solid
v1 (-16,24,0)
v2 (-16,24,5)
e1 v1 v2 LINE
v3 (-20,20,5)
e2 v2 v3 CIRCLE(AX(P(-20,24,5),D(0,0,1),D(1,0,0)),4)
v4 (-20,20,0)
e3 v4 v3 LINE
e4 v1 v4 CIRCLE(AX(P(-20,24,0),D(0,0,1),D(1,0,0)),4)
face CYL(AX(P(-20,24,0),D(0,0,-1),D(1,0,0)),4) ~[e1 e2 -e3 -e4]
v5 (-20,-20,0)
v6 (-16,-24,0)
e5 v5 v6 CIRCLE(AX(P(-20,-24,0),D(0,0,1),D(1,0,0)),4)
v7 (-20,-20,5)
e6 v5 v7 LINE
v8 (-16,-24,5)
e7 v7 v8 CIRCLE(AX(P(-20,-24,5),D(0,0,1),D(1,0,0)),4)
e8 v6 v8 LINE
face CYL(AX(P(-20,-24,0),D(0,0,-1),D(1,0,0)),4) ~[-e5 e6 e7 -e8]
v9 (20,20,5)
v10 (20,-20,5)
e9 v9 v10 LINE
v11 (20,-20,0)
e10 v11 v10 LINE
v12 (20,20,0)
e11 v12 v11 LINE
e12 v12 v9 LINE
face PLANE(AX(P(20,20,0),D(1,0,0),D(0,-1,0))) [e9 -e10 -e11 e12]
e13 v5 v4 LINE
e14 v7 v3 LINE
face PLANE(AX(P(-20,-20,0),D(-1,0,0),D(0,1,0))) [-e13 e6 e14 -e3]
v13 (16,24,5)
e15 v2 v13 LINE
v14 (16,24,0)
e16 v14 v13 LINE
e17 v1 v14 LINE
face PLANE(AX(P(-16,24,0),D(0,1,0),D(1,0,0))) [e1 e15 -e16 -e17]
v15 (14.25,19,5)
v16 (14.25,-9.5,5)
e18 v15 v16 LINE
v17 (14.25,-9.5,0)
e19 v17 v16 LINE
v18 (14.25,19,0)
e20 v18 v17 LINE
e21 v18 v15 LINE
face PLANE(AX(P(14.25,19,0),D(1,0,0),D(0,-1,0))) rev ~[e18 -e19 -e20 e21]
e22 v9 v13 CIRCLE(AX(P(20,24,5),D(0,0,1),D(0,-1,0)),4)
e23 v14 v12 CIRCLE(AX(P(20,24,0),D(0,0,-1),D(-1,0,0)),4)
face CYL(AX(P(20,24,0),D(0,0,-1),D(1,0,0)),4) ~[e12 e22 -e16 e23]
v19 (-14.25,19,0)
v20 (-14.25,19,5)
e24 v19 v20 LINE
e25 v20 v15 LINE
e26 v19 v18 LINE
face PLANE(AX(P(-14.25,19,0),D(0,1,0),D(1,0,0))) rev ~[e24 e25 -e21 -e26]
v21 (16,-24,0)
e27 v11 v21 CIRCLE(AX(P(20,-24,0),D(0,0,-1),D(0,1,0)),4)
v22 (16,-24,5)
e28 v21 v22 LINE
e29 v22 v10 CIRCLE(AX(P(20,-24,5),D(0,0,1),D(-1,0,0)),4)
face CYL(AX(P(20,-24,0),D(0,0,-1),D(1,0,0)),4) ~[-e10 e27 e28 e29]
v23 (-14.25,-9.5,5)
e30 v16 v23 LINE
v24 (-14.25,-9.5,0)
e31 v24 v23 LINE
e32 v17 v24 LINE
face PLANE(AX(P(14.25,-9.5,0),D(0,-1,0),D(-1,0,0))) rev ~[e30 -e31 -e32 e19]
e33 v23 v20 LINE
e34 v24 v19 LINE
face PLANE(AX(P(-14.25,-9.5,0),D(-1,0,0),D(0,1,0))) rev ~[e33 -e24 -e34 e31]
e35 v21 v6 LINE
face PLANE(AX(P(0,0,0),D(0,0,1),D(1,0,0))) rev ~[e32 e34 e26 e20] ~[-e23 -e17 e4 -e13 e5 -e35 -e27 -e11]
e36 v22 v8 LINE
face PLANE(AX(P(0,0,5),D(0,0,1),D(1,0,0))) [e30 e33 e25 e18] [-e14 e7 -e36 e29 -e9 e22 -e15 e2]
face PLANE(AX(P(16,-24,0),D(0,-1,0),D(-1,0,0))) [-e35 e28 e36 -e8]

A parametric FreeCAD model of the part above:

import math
import FreeCAD as App
import Part
import Sketcher
from FreeCAD import Vector

doc = App.newDocument("Part")
params = doc.addObject("Spreadsheet::Sheet", "Params")
for row, (alias, value) in enumerate([
    ("sketch1_radius", "4 mm"),
    ("sketch1_height", "40 mm"),
    ("sketch1_width", "28.5 mm"),
    ("pad1_length", "5 mm"),
], start=1):
    params.set(f"A{row}", alias)
    params.set(f"B{row}", "=" + value)
    params.setAlias(f"B{row}", alias)

body = doc.addObject("PartDesign::Body", "Body")

sketch1 = body.newObject("Sketcher::SketchObject", "Sketch")
sketch1.AttachmentSupport = (doc.getObject("XY_Plane"), [""])
sketch1.MapMode = "FlatFace"
sketch1.addGeometry([
    Part.ArcOfCircle(Part.Circle(Vector(-20, 24, 0), Vector(0, 0, 1), 4), math.radians(0), math.radians(270)),
    Part.LineSegment(Vector(-20, 20, 0), Vector(-20, -20, 0)),
    Part.ArcOfCircle(Part.Circle(Vector(-20, -24, 0), Vector(0, 0, 1), 4), math.radians(90), math.radians(360)),
    Part.LineSegment(Vector(-16, -24, 0), Vector(16, -24, 0)),
    Part.ArcOfCircle(Part.Circle(Vector(20, -24, 0), Vector(0, 0, 1), 4), math.radians(180), math.radians(450)),
    Part.LineSegment(Vector(20, -20, 0), Vector(20, 20, 0)),
    Part.ArcOfCircle(Part.Circle(Vector(20, 24, 0), Vector(0, 0, 1), 4), math.radians(-90), math.radians(180)),
    Part.LineSegment(Vector(16, 24, 0), Vector(-16, 24, 0)),
    Part.LineSegment(Vector(-14.2, 19, 0), Vector(14.2, 19, 0)),
    Part.LineSegment(Vector(14.2, 19, 0), Vector(14.2, -9.5, 0)),
    Part.LineSegment(Vector(14.2, -9.5, 0), Vector(-14.2, -9.5, 0)),
    Part.LineSegment(Vector(-14.2, -9.5, 0), Vector(-14.2, 19, 0)),
], False)
sketch1.addConstraint([
    Sketcher.Constraint("Coincident", 0, 2, 1, 1),
    Sketcher.Constraint("Coincident", 1, 2, 2, 1),
    Sketcher.Constraint("Coincident", 2, 2, 3, 1),
    Sketcher.Constraint("Coincident", 3, 2, 4, 1),
    Sketcher.Constraint("Coincident", 4, 2, 5, 1),
    Sketcher.Constraint("Coincident", 5, 2, 6, 1),
    Sketcher.Constraint("Coincident", 6, 2, 7, 1),
    Sketcher.Constraint("Coincident", 7, 2, 0, 1),
    Sketcher.Constraint("Coincident", 8, 2, 9, 1),
    Sketcher.Constraint("Coincident", 9, 2, 10, 1),
    Sketcher.Constraint("Coincident", 10, 2, 11, 1),
    Sketcher.Constraint("Coincident", 11, 2, 8, 1),
    Sketcher.Constraint("Vertical", 1),
    Sketcher.Constraint("Horizontal", 3),
    Sketcher.Constraint("Vertical", 5),
    Sketcher.Constraint("Horizontal", 7),
    Sketcher.Constraint("Horizontal", 8),
    Sketcher.Constraint("Vertical", 9),
    Sketcher.Constraint("Horizontal", 10),
    Sketcher.Constraint("Vertical", 11),
    Sketcher.Constraint("Equal", 0, 2),
    Sketcher.Constraint("Equal", 2, 4),
    Sketcher.Constraint("Equal", 4, 6),
    Sketcher.Constraint("Symmetric", 0, 3, 4, 3, -1, 1),
    Sketcher.Constraint("Symmetric", 2, 3, 6, 3, -1, 1),
    Sketcher.Constraint("Symmetric", 2, 3, 4, 3, -2),
    Sketcher.Constraint("Horizontal", 4, 3, 2, 2),
    Sketcher.Constraint("Horizontal", 0, 3, 6, 2),
    Sketcher.Constraint("Vertical", 2, 3, 0, 2),
    Sketcher.Constraint("Vertical", 6, 3, 4, 2),
    Sketcher.Constraint("Equal", 10, 9),
    Sketcher.Constraint("Radius", 0, 4.0),
    Sketcher.Constraint("DistanceY", 1, 2, 1, 1, 40.0),
    Sketcher.Constraint("DistanceX", 8, 1, 8, 2, 28.5),
    Sketcher.Constraint("DistanceX", 2, 3, 4, 3, 40.0),
    Sketcher.Constraint("DistanceY", 8, 2, 6, 2, 5.0),
    Sketcher.Constraint("DistanceX", -1, 1, 8, 2, 14.25),
])
sketch1.setExpression("Constraints[31]", "Params.sketch1_radius")
sketch1.setExpression("Constraints[32]", "Params.sketch1_height")
sketch1.setExpression("Constraints[33]", "Params.sketch1_width")
pad1 = body.newObject("PartDesign::Pad", "Pad")
pad1.Profile = sketch1
pad1.setExpression("Length", "Params.pad1_length")

doc.recompute()
